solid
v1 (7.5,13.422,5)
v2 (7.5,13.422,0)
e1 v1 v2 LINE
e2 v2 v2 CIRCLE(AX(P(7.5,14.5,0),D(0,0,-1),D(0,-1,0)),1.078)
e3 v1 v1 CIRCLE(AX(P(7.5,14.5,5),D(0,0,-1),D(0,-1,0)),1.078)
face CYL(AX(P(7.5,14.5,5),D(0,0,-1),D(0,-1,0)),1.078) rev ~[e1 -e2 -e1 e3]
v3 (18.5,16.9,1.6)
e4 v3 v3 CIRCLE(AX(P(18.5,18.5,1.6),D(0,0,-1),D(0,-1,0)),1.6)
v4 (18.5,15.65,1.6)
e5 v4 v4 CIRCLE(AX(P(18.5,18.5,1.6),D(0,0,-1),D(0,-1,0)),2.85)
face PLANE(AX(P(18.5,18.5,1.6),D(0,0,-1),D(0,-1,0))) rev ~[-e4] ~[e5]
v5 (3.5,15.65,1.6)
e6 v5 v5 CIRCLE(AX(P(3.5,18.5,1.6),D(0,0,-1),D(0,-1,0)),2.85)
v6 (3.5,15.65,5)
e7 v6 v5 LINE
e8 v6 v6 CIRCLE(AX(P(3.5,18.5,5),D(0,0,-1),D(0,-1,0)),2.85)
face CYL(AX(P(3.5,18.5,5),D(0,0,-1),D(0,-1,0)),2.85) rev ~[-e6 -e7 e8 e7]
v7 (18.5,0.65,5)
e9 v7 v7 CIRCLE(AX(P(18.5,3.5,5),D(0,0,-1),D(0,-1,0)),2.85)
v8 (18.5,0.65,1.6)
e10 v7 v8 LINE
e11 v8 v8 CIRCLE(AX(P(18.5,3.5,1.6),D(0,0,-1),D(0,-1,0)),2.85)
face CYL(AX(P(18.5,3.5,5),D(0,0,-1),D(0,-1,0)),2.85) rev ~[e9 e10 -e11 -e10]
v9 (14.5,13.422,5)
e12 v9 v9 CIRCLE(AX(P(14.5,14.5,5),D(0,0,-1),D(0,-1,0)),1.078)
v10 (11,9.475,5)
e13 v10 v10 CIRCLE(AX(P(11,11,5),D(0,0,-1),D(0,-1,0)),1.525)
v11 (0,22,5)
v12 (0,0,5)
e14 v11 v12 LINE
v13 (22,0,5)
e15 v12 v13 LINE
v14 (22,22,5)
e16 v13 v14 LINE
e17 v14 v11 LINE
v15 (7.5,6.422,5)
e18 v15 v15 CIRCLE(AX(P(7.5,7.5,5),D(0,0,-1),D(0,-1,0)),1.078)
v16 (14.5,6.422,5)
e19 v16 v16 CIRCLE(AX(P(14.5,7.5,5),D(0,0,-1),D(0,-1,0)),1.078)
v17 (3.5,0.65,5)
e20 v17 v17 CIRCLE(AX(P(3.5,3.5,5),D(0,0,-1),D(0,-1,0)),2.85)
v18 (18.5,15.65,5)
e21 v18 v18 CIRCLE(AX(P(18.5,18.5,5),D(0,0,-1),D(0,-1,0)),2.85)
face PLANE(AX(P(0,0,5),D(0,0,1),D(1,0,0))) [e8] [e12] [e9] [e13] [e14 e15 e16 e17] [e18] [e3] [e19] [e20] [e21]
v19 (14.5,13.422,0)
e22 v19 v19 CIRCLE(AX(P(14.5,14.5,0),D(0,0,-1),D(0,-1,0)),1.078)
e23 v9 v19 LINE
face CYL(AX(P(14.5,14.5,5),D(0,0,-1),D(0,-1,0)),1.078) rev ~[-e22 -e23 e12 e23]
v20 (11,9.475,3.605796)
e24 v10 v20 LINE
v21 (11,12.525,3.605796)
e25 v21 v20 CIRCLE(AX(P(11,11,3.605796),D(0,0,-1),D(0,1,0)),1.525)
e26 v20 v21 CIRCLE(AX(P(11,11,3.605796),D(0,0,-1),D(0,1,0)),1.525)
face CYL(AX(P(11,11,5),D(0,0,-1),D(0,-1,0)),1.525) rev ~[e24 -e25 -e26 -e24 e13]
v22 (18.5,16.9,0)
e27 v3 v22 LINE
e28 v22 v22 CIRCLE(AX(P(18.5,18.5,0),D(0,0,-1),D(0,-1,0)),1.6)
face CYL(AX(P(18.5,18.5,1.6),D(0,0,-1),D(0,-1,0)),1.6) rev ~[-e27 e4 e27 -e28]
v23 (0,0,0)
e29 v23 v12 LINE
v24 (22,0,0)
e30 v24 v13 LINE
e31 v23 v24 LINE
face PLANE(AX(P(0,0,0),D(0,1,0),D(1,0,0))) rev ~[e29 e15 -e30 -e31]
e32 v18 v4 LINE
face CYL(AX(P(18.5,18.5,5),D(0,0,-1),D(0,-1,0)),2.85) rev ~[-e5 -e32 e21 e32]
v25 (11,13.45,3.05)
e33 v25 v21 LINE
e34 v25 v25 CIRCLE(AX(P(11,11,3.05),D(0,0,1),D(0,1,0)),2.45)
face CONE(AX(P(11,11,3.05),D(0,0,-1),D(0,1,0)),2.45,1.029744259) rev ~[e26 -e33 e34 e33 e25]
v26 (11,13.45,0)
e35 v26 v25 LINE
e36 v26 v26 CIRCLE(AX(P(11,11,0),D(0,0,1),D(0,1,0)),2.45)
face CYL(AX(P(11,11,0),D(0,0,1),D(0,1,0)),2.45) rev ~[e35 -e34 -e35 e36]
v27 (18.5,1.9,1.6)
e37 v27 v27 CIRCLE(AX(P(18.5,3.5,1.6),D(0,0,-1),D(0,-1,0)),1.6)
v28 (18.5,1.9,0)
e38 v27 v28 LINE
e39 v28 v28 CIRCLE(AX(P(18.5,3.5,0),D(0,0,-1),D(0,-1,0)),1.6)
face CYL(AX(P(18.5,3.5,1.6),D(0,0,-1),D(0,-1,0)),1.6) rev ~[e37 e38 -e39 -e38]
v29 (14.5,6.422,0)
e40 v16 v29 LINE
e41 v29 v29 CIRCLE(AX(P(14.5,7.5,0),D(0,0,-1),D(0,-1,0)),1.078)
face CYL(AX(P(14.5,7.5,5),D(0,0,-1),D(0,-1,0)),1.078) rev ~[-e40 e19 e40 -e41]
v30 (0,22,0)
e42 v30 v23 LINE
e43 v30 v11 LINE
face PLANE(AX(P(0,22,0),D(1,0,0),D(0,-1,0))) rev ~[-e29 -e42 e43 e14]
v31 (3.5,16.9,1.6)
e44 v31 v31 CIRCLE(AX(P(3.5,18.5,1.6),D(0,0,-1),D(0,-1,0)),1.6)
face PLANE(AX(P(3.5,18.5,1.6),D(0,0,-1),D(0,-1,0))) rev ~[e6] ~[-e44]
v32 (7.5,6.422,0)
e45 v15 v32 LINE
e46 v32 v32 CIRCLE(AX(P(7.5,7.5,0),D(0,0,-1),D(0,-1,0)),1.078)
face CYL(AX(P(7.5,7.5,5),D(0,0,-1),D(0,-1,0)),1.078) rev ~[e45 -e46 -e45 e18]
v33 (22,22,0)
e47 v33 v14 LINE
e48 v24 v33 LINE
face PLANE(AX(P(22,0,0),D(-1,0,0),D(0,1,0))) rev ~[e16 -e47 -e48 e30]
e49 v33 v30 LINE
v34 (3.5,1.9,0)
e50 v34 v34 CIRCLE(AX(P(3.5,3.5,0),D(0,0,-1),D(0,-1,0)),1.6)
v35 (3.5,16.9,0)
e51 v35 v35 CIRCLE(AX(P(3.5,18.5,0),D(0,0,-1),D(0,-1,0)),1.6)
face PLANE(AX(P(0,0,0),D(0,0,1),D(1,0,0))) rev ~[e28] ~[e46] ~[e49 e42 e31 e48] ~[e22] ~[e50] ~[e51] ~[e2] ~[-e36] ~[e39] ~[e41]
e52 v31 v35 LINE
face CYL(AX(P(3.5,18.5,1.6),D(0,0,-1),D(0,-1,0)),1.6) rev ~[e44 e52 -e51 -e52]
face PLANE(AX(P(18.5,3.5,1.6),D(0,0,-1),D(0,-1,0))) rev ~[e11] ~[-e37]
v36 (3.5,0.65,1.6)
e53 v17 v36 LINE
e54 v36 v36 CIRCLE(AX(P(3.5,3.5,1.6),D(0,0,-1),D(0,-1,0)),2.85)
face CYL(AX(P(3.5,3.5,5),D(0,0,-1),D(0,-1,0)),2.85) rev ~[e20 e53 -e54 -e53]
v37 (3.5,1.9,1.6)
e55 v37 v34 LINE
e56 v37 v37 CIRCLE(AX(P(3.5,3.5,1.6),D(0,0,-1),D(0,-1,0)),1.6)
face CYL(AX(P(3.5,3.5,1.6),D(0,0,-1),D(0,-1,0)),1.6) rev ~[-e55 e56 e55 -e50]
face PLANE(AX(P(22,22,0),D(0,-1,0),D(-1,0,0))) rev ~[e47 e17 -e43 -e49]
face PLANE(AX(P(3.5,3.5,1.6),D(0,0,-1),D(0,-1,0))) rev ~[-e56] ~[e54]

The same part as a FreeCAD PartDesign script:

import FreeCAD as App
import Part
import Sketcher
from FreeCAD import Vector
Q = App.Units.Quantity


def add_polygon(sketch, points):
    """Adds a closed chain of lines whose ends are joined by coincident constraints."""
    first, n = sketch.GeometryCount, len(points)
    for a, b in zip(points, points[1:] + points[:1]):
        sketch.addGeometry(Part.LineSegment(App.Vector(*a, 0), App.Vector(*b, 0)), False)
    for i in range(n):
        sketch.addConstraint(Sketcher.Constraint("Coincident", first + i, 2, first + (i + 1) % n, 1))

doc = App.newDocument("Part")
body = doc.addObject("PartDesign::Body", "Body")

# Sketch on XY plane
sketch1 = body.newObject("Sketcher::SketchObject", "Sketch")
sketch1.AttachmentSupport = (doc.getObject("XY_Plane"), [""])
sketch1.MapMode = "FlatFace"
add_polygon(sketch1, [(0, 22), (0, 0), (22, 0), (22, 22)])  # lines 0-3
sketch1.addConstraint([
    Sketcher.Constraint("Vertical", 0),
    Sketcher.Constraint("Horizontal", 1),
    Sketcher.Constraint("Vertical", 2),
    Sketcher.Constraint("Horizontal", 3),
    Sketcher.Constraint("Coincident", 0, 2, -1, 1),
    Sketcher.Constraint("Equal", 3, 0),
    Sketcher.Constraint("DistanceX", 1, 1, 1, 2, Q("22 mm")),
])
pad1 = body.newObject("PartDesign::Pad", "Pad")
pad1.Profile = sketch1
pad1.Length = 5

# Sketch on XY plane
sketch2 = body.newObject("Sketcher::SketchObject", "Sketch001")
sketch2.AttachmentSupport = (doc.getObject("XY_Plane"), [""])
sketch2.MapMode = "FlatFace"
sketch2.AttachmentOffset = App.Placement(Vector(0, 0, 5), App.Rotation())
sketch2.addGeometry([
    Part.Circle(Vector(3.5, 18.5, 0), Vector(0, 0, 1), 1.6),
    Part.Circle(Vector(18.5, 18.5, 0), Vector(0, 0, 1), 1.6),
    Part.Circle(Vector(18.5, 3.5, 0), Vector(0, 0, 1), 1.6),
    Part.Circle(Vector(3.5, 3.5, 0), Vector(0, 0, 1), 1.6),
], False)
sketch2.addConstraint([
    Sketcher.Constraint("Equal", 0, 1),
    Sketcher.Constraint("Equal", 1, 2),
    Sketcher.Constraint("Equal", 2, 3),
    Sketcher.Constraint("Horizontal", 0, 3, 1, 3),
    Sketcher.Constraint("Horizontal", 2, 3, 3, 3),
    Sketcher.Constraint("Vertical", 1, 3, 2, 3),
    Sketcher.Constraint("Vertical", 0, 3, 3, 3),
    Sketcher.Constraint("Diameter", 0, Q("3.2 mm")),
    Sketcher.Constraint("DistanceX", 0, 3, 1, 3, Q("15 mm")),
    Sketcher.Constraint("DistanceY", 2, 3, 1, 3, Q("15 mm")),
    Sketcher.Constraint("DistanceX", -1, 1, 0, 3, Q("3.5 mm")),
    Sketcher.Constraint("DistanceY", -1, 1, 0, 3, Q("18.5 mm")),
])
doc.recompute()
hole = body.newObject("PartDesign::Hole", "Hole")
hole.Profile = sketch2
hole.ThreadType = "None"
hole.Diameter = 3.2
hole.DepthType = "ThroughAll"
hole.HoleCutType = "Counterbore"
hole.HoleCutDiameter = 5.7
hole.HoleCutDepth = 3.4

# Sketch on XY plane
sketch3 = body.newObject("Sketcher::SketchObject", "Sketch002")
sketch3.AttachmentSupport = (doc.getObject("XY_Plane"), [""])
sketch3.MapMode = "FlatFace"
sketch3.AttachmentOffset = App.Placement(Vector(0, 0, 5), App.Rotation())
sketch3.addGeometry([
    Part.Circle(Vector(7.5, 7.5, 0), Vector(0, 0, 1), 1.078),
    Part.Circle(Vector(7.5, 14.5, 0), Vector(0, 0, 1), 1.078),
    Part.Circle(Vector(14.5, 7.5, 0), Vector(0, 0, 1), 1.078),
    Part.Circle(Vector(14.5, 14.5, 0), Vector(0, 0, 1), 1.078),
], False)
sketch3.addConstraint([
    Sketcher.Constraint("Equal", 0, 1),
    Sketcher.Constraint("Equal", 1, 2),
    Sketcher.Constraint("Equal", 2, 3),
    Sketcher.Constraint("Horizontal", 0, 3, 2, 3),
    Sketcher.Constraint("Horizontal", 1, 3, 3, 3),
    Sketcher.Constraint("Vertical", 0, 3, 1, 3),
    Sketcher.Constraint("Vertical", 2, 3, 3, 3),
    Sketcher.Constraint("Diameter", 0, Q("2.156 mm")),
    Sketcher.Constraint("DistanceY", 0, 3, 1, 3, Q("7 mm")),
    Sketcher.Constraint("DistanceX", 0, 3, 2, 3, Q("7 mm")),
    Sketcher.Constraint("DistanceX", -1, 1, 0, 3, Q("7.5 mm")),
    Sketcher.Constraint("DistanceY", -1, 1, 0, 3, Q("7.5 mm")),
])
doc.recompute()
hole2 = body.newObject("PartDesign::Hole", "Hole001")
hole2.Profile = sketch3
hole2.ThreadType = "None"
hole2.Diameter = 2.156
hole2.DepthType = "ThroughAll"

# Sketch on XY plane
sketch4 = body.newObject("Sketcher::SketchObject", "Sketch003")
sketch4.AttachmentSupport = (doc.getObject("XY_Plane"), [""])
sketch4.MapMode = "FlatFace"
sketch4.AttachmentOffset = App.Placement(Vector(0, 0, 5), App.Rotation())
sketch4.addGeometry(Part.Circle(Vector(11, 11, 0), Vector(0, 0, 1), 1.525), False)
sketch4.addConstraint([
    Sketcher.Constraint("Diameter", 0, Q("3.05 mm")),
    Sketcher.Constraint("DistanceX", -1, 1, 0, 3, Q("11 mm")),
    Sketcher.Constraint("DistanceY", -1, 1, 0, 3, Q("11 mm")),
])
doc.recompute()
hole3 = body.newObject("PartDesign::Hole", "Hole002")
hole3.Profile = sketch4
hole3.ThreadType = "None"
hole3.Diameter = 3.05
hole3.DepthType = "ThroughAll"

# Sketch on XY plane
sketch5 = body.newObject("Sketcher::SketchObject", "Sketch004")
sketch5.AttachmentSupport = (doc.getObject("XY_Plane"), [""])
sketch5.MapMode = "FlatFace"
sketch5.addGeometry(Part.Circle(Vector(11, 11, 0), Vector(0, 0, 1), 2.45), False)
sketch5.addConstraint([
    Sketcher.Constraint("Diameter", 0, Q("4.9 mm")),
    Sketcher.Constraint("DistanceX", -1, 1, 0, 3, Q("11 mm")),
    Sketcher.Constraint("DistanceY", -1, 1, 0, 3, Q("11 mm")),
])
doc.recompute()
hole4 = body.newObject("PartDesign::Hole", "Hole003")
hole4.Profile = sketch5
hole4.ThreadType = "None"
hole4.Diameter = 4.9
hole4.DepthType = "Dimension"
hole4.Depth = 3.05
hole4.DrillPoint = "Angled"
hole4.DrillPointAngle = 118
hole4.Reversed = True

doc.recompute()
